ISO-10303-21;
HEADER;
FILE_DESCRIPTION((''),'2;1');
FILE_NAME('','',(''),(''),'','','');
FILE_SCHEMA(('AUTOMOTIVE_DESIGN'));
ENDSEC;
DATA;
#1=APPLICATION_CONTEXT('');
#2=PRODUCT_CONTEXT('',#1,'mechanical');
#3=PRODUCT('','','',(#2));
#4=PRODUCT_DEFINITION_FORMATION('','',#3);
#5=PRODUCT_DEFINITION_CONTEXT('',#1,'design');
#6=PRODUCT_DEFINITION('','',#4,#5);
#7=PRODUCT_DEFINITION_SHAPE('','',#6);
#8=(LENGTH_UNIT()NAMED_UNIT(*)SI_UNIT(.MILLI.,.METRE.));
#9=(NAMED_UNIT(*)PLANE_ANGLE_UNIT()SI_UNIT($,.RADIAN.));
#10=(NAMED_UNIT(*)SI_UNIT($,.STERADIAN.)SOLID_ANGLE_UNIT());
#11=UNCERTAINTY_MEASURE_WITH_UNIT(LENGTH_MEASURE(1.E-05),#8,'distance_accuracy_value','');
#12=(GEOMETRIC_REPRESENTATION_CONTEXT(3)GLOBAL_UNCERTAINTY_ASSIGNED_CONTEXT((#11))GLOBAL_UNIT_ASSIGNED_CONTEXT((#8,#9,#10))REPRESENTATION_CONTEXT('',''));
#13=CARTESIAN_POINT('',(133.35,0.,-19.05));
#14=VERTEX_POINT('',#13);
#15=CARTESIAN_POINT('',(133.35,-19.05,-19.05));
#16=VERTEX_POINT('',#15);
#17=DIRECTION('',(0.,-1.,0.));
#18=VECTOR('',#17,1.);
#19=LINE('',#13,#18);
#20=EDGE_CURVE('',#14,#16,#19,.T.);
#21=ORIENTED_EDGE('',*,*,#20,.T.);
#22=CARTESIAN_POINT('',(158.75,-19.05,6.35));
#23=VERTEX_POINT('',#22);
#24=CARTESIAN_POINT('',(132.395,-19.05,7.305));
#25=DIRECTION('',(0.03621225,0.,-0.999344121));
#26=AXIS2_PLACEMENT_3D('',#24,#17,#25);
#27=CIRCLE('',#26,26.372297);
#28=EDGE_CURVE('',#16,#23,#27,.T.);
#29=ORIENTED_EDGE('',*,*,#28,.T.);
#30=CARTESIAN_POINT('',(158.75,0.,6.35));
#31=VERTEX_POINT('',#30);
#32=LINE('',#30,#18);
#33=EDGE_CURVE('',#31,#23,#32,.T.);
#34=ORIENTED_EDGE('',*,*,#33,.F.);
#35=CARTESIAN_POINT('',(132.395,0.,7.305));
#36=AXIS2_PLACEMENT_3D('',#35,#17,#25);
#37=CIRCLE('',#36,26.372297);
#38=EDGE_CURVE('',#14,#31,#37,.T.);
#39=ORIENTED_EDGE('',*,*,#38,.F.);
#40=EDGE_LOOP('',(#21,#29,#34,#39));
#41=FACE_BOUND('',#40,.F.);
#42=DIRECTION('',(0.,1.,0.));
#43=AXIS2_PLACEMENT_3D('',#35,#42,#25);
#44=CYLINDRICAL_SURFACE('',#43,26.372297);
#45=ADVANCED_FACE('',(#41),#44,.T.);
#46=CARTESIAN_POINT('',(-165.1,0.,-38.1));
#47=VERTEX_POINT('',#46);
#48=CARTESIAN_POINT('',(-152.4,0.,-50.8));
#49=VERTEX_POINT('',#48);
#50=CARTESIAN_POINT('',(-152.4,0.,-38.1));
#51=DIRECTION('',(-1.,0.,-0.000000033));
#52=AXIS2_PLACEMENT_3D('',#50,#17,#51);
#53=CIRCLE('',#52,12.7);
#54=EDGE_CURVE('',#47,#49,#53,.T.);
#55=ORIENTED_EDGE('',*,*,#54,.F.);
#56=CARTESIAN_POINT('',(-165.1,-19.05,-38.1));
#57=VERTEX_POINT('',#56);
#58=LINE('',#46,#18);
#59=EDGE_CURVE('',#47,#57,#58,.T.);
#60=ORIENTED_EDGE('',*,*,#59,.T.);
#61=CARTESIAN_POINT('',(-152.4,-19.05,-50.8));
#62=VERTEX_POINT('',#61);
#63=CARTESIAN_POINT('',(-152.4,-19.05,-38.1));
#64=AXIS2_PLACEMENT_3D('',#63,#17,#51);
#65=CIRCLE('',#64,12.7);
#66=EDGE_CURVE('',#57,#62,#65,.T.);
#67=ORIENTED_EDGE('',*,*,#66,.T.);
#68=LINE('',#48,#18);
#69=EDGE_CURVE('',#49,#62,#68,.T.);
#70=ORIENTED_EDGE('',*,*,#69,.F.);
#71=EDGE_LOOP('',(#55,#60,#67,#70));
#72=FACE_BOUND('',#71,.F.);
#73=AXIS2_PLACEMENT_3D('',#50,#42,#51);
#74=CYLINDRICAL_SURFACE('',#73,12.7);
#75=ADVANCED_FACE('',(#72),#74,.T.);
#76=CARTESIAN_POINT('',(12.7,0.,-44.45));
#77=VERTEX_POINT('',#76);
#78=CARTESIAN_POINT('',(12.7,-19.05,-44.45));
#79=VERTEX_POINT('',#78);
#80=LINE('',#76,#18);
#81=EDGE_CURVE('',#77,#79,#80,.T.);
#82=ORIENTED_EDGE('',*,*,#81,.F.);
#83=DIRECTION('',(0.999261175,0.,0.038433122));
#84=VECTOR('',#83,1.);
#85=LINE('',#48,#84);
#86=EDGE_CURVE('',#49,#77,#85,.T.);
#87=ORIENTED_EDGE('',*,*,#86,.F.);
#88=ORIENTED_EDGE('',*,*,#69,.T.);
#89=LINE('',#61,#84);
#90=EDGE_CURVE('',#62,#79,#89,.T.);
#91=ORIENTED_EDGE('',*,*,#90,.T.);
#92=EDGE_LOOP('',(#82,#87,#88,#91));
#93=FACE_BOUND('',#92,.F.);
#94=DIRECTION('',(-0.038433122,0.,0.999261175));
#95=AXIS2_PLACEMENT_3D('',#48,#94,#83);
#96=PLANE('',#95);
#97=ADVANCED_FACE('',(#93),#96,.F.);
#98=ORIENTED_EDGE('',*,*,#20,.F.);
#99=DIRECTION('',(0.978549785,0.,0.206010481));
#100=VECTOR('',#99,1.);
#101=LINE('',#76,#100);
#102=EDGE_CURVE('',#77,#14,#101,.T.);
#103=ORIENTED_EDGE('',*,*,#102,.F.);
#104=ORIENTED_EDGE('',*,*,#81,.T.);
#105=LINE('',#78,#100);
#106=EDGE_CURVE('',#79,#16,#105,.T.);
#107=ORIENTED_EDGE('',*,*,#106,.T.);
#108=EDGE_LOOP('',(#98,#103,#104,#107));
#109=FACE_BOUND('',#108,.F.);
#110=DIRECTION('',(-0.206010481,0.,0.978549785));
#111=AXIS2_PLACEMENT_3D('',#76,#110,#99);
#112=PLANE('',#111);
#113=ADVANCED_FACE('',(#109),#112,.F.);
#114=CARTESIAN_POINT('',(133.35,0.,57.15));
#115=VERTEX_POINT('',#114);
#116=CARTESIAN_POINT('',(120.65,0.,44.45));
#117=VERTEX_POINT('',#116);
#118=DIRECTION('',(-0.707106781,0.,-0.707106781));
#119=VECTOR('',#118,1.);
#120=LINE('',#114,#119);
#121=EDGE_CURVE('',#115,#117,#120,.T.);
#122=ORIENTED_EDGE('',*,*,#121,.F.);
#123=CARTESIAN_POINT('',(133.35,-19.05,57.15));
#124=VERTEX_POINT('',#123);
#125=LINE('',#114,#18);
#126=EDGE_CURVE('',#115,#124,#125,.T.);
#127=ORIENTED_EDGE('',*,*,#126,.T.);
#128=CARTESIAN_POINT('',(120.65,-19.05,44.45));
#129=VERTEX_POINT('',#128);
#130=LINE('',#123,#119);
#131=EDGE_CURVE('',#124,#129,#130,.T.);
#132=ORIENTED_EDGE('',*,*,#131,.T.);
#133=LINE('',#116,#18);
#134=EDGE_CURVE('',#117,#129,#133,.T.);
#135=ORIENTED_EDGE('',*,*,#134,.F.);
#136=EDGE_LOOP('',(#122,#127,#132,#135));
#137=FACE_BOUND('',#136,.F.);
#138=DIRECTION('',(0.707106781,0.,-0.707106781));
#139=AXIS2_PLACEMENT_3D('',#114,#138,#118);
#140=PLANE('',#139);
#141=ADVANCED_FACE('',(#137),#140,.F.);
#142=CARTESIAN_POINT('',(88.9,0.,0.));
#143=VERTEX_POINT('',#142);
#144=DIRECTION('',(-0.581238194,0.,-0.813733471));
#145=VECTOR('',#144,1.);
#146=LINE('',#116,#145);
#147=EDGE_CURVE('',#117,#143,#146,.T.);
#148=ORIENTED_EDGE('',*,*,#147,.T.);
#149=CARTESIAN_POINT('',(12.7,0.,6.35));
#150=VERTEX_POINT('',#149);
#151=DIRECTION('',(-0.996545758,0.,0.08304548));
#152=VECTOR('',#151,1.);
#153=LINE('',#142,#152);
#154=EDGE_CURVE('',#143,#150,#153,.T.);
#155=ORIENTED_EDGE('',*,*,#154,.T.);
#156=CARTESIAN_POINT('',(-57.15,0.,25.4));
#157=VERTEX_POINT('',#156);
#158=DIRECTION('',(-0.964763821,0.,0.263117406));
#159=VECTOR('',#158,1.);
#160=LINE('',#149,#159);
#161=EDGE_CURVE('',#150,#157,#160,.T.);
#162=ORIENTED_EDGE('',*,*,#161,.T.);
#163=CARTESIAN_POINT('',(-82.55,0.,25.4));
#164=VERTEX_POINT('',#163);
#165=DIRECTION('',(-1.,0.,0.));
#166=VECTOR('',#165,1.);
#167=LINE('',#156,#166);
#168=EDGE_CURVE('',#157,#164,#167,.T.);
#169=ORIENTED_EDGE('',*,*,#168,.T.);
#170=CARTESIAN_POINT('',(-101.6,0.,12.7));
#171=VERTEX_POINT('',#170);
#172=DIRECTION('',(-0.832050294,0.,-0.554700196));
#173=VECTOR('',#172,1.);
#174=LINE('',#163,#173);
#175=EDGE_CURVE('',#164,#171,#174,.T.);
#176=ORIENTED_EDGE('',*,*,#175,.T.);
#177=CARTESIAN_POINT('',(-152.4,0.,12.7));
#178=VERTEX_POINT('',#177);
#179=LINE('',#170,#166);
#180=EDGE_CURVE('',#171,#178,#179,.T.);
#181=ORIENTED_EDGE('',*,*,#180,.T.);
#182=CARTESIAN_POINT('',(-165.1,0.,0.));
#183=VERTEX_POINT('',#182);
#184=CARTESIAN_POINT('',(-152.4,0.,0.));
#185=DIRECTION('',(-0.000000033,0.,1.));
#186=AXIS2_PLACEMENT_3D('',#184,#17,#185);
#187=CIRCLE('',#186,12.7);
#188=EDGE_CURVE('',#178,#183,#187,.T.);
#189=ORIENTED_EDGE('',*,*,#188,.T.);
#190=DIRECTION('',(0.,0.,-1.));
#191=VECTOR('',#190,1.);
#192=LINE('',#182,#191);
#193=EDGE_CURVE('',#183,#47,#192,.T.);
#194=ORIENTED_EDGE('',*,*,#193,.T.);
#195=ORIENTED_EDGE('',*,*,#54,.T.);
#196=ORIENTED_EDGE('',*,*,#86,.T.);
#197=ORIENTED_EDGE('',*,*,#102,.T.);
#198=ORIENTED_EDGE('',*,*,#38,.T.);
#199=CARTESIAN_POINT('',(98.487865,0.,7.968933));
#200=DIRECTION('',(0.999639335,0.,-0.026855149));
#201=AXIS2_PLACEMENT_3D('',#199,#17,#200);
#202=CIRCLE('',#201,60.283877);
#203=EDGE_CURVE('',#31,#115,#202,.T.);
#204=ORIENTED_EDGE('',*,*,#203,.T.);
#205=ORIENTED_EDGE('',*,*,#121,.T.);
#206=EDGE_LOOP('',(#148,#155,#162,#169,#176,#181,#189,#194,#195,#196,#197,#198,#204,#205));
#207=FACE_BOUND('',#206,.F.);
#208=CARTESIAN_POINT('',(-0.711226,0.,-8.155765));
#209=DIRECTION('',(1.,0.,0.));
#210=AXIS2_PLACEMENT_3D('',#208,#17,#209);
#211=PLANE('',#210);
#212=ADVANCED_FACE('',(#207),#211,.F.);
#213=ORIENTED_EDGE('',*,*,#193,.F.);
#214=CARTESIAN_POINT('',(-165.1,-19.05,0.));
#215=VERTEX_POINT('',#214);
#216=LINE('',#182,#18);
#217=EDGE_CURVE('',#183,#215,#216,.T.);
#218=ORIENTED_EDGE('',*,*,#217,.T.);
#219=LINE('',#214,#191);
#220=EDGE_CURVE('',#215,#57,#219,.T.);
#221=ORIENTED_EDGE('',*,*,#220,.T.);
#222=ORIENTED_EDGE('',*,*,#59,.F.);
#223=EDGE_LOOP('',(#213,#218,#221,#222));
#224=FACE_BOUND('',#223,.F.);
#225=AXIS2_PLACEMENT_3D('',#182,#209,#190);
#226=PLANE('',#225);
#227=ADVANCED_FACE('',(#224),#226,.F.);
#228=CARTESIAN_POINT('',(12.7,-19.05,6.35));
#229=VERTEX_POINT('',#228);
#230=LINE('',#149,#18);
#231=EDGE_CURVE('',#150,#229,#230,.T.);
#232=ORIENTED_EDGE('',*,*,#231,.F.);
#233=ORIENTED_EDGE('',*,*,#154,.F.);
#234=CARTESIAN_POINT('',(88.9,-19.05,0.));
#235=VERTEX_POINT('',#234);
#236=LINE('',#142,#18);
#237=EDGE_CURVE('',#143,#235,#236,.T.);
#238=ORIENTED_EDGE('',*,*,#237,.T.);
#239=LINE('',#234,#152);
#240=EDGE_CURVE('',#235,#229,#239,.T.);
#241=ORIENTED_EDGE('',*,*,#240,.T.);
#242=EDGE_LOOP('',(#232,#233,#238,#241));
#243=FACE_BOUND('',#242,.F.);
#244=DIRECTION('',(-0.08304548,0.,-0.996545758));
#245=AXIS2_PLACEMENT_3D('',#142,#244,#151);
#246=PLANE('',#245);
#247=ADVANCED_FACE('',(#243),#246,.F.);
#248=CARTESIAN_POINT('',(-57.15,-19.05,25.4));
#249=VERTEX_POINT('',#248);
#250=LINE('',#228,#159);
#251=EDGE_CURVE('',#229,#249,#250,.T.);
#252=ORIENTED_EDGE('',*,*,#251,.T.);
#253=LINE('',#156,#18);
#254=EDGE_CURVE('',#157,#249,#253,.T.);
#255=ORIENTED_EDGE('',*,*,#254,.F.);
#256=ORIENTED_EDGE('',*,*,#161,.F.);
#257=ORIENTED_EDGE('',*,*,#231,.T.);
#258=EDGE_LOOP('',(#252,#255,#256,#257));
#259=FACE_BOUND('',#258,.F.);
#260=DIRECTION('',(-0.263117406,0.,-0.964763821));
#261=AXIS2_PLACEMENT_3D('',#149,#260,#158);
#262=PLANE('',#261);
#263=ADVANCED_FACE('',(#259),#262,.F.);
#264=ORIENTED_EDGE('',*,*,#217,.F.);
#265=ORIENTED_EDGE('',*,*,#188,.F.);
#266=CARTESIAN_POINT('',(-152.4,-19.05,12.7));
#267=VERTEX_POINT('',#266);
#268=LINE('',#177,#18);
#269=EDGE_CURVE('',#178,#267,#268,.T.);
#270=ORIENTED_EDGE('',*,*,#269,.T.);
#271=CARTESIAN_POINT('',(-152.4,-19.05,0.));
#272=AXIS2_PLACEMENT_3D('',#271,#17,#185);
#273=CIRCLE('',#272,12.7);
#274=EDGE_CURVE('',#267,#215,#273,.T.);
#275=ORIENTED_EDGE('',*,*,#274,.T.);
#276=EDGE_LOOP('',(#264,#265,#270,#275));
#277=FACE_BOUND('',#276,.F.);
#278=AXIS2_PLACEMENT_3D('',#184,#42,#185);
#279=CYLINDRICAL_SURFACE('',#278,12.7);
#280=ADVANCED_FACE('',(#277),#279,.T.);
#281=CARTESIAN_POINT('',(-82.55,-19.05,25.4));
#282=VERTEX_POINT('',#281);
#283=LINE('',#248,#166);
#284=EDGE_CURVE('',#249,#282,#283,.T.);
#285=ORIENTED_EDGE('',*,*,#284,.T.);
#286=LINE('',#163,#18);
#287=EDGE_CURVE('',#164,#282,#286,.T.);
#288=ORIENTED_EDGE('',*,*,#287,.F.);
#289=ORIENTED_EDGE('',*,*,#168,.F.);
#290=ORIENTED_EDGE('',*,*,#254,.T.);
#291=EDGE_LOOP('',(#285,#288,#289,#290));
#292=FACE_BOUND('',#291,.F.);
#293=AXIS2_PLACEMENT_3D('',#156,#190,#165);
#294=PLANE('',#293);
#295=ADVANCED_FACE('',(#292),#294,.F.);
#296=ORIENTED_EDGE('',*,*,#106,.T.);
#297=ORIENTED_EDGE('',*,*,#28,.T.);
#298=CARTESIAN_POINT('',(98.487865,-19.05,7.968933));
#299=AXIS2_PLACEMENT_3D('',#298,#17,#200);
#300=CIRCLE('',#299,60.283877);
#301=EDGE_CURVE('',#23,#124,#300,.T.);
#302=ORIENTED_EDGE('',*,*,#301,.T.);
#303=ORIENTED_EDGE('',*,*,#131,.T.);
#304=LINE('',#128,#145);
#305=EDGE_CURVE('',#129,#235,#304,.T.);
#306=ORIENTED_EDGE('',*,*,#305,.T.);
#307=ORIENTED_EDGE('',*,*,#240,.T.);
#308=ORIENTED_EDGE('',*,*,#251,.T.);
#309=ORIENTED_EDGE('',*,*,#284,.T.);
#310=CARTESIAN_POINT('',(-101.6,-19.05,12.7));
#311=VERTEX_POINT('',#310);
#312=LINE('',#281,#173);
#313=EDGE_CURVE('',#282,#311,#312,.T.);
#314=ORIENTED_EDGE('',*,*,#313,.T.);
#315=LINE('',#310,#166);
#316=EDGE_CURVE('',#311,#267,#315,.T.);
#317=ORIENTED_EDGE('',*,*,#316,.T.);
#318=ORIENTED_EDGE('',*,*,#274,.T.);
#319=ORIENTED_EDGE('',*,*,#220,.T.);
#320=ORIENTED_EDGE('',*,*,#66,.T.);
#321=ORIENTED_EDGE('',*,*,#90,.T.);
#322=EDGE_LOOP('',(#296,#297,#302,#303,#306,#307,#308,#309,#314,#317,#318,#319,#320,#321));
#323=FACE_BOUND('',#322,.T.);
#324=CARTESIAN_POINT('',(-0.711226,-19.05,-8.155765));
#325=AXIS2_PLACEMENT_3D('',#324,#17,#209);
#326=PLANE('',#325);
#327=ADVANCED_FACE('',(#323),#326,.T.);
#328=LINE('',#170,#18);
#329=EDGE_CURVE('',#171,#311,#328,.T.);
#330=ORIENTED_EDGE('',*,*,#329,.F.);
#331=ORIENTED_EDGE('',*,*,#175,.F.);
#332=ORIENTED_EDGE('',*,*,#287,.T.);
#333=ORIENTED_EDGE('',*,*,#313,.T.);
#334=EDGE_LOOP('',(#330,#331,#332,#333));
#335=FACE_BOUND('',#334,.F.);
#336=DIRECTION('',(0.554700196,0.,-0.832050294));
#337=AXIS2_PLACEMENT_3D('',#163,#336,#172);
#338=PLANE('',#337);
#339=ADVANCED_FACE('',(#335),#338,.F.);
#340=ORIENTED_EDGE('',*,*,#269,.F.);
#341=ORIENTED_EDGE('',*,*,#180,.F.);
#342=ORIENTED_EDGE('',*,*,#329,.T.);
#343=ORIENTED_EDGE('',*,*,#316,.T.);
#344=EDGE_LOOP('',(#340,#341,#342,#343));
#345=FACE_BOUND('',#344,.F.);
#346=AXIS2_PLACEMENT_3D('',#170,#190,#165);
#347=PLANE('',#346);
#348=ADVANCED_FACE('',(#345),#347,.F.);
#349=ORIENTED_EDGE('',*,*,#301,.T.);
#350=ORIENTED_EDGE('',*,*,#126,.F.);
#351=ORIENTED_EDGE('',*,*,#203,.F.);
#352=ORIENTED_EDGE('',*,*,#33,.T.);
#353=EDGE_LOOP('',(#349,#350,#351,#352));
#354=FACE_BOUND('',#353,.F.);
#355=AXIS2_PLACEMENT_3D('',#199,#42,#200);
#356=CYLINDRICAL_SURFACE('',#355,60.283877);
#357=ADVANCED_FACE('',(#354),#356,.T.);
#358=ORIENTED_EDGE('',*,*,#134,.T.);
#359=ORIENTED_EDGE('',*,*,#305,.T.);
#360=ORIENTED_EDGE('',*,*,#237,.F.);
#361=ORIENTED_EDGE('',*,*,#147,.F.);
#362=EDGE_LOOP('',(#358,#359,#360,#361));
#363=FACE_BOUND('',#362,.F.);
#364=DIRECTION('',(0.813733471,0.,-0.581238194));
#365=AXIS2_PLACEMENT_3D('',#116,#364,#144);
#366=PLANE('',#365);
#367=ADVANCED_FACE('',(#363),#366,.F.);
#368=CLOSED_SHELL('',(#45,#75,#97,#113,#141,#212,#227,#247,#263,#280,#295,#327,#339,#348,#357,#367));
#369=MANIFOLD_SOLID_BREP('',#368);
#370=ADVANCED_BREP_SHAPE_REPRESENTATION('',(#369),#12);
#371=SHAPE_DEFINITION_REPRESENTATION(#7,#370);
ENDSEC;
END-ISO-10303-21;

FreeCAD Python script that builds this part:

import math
import FreeCAD as App
import Part
import Sketcher

V = App.Vector
Q = App.Units.Quantity

doc = App.newDocument("Part")
params = doc.addObject("Spreadsheet::Sheet", "Params")
for row, (alias, value) in enumerate([
    ("sketch1_radius", "0.5 in"),
    ("sketch1_width", "1 in"),
    ("sketch1_width2", "2 in"),
    ("sketch1_height", "1.5 in"),
    ("pad1_length", "0.75 in"),
], start=1):
    params.set(f"A{row}", alias)
    params.set(f"B{row}", "=" + value)
    params.setAlias(f"B{row}", alias)

body = doc.addObject("PartDesign::Body", "Body")

# Sketch on XZ plane
sketch1 = body.newObject("Sketcher::SketchObject", "Sketch")
sketch1.AttachmentSupport = (doc.getObject("XZ_Plane"), [""])
sketch1.MapMode = "FlatFace"
sketch1.addGeometry([
    Part.LineSegment(V(-165.1, 0, 0), V(-165.1, -38.1, 0)),  # 0
    Part.ArcOfCircle(Part.Circle(V(-152.4, -38.1, 0), V(0, 0, 1), 12.7), math.radians(-179.999998), math.radians(-90.000002)),  # 1
    Part.LineSegment(V(-152.4, -50.8, 0), V(12.7, -44.45, 0)),  # 2
    Part.LineSegment(V(12.7, -44.45, 0), V(133.35, -19.05, 0)),  # 3
    Part.ArcOfCircle(Part.Circle(V(132.395, 7.305, 0), V(0, 0, 1), 26.372297), math.radians(-87.924737), math.radians(-2.075263)),  # 4
    Part.ArcOfCircle(Part.Circle(V(98.487865, 7.968933, 0), V(0, 0, 1), 60.283877), math.radians(-1.538872), math.radians(54.668974)),  # 5
    Part.LineSegment(V(133.35, 57.15, 0), V(120.65, 44.45, 0)),  # 6
    Part.LineSegment(V(120.65, 44.45, 0), V(88.9, 0, 0)),  # 7
    Part.LineSegment(V(88.9, 0, 0), V(12.7, 6.35, 0)),  # 8
    Part.LineSegment(V(12.7, 6.35, 0), V(-57.15, 25.4, 0)),  # 9
    Part.LineSegment(V(-57.15, 25.4, 0), V(-82.55, 25.4, 0)),  # 10
    Part.LineSegment(V(-82.55, 25.4, 0), V(-101.6, 12.7, 0)),  # 11
    Part.LineSegment(V(-101.6, 12.7, 0), V(-152.4, 12.7, 0)),  # 12
    Part.ArcOfCircle(Part.Circle(V(-152.4, 0, 0), V(0, 0, 1), 12.7), math.radians(90.000002), math.radians(179.999998)),  # 13
], False)
sketch1.addConstraint([
    Sketcher.Constraint("Tangent", 0, 2, 1, 1),
    Sketcher.Constraint("Coincident", 1, 2, 2, 1),
    Sketcher.Constraint("Coincident", 2, 2, 3, 1),
    Sketcher.Constraint("Coincident", 3, 2, 4, 1),
    Sketcher.Constraint("Coincident", 4, 2, 5, 1),
    Sketcher.Constraint("Coincident", 5, 2, 6, 1),
    Sketcher.Constraint("Coincident", 6, 2, 7, 1),
    Sketcher.Constraint("Coincident", 7, 2, 8, 1),
    Sketcher.Constraint("Coincident", 8, 2, 9, 1),
    Sketcher.Constraint("Coincident", 9, 2, 10, 1),
    Sketcher.Constraint("Coincident", 10, 2, 11, 1),
    Sketcher.Constraint("Coincident", 11, 2, 12, 1),
    Sketcher.Constraint("Tangent", 12, 2, 13, 1),
    Sketcher.Constraint("Tangent", 13, 2, 0, 1),
    Sketcher.Constraint("Vertical", 0),
    Sketcher.Constraint("Horizontal", 10),
    Sketcher.Constraint("Horizontal", 12),
    Sketcher.Constraint("Equal", 1, 13),
    Sketcher.Constraint("PointOnObject", 13, 3, -1),
    Sketcher.Constraint("PointOnObject", 7, 2, -1),
    Sketcher.Constraint("Horizontal", 4, 2, 8, 2),
    Sketcher.Constraint("Vertical", 13, 3, 1, 2),
    Sketcher.Constraint("Vertical", 3, 2, 5, 2),
    Sketcher.Constraint("Vertical", 2, 2, 8, 2),
    Sketcher.Constraint("Radius", 1, Q("0.5 in")),
    Sketcher.Constraint("DistanceX", 10, 2, 10, 1, Q("1 in")),
    Sketcher.Constraint("DistanceX", 12, 2, 12, 1, Q("2 in")),
    Sketcher.Constraint("DistanceY", 0, 2, 0, 1, Q("1.5 in")),
    Sketcher.Constraint("DistanceX", 1, 3, -1, 1, Q("6 in")),
    Sketcher.Constraint("DistanceY", -1, 1, 9, 2, Q("1 in")),
    Sketcher.Constraint("Angle", 6, Q("-135 deg")),
    Sketcher.Constraint("DistanceY", 2, 2, 3, 2, Q("1 in")),
    Sketcher.Constraint("DistanceX", 3, 2, 4, 2, Q("1 in")),
    Sketcher.Constraint("DistanceY", 3, 2, 4, 2, Q("1 in")),
    Sketcher.Constraint("DistanceY", 4, 2, 5, 2, Q("2 in")),
    Sketcher.Constraint("DistanceX", 8, 2, 7, 2, Q("3 in")),
    Sketcher.Constraint("DistanceX", -1, 1, 2, 2, Q("0.5 in")),
    Sketcher.Constraint("DistanceX", 6, 2, 5, 2, Q("0.5 in")),
    Sketcher.Constraint("DistanceY", 2, 2, -1, 1, Q("1.75 in")),
    Sketcher.Constraint("DistanceX", -1, 1, 3, 2, Q("5.25 in")),
    Sketcher.Constraint("DistanceX", 9, 2, -1, 1, Q("2.25 in")),
    Sketcher.Constraint("Radius", 4, Q("26.372297 mm")),
    Sketcher.Constraint("Radius", 5, Q("60.283877 mm")),
])
sketch1.setExpression("Constraints[24]", "Params.sketch1_radius")
sketch1.setExpression("Constraints[25]", "Params.sketch1_width")
sketch1.setExpression("Constraints[26]", "Params.sketch1_width2")
sketch1.setExpression("Constraints[27]", "Params.sketch1_height")
pad1 = body.newObject("PartDesign::Pad", "Pad")
pad1.Profile = sketch1
pad1.setExpression("Length", "Params.pad1_length")

doc.recompute()
